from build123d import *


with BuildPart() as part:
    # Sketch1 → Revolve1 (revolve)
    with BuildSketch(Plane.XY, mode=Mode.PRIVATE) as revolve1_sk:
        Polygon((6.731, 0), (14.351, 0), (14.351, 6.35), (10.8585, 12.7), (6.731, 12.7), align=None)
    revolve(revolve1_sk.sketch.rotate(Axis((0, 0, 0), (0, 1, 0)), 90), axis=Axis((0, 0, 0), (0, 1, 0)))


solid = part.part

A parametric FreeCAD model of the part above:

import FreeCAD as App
import Part
import Sketcher

V = App.Vector
Q = App.Units.Quantity


def add_polygon(sketch, points):
    """Adds a closed chain of lines whose ends are joined by coincident constraints."""
    first, n = sketch.GeometryCount, len(points)
    for a, b in zip(points, points[1:] + points[:1]):
        sketch.addGeometry(Part.LineSegment(App.Vector(*a, 0), App.Vector(*b, 0)), False)
    for i in range(n):
        sketch.addConstraint(Sketcher.Constraint("Coincident", first + i, 2, first + (i + 1) % n, 1))

doc = App.newDocument("Part")
params = doc.addObject("Spreadsheet::Sheet", "Params")
for row, (alias, value) in enumerate([
    ("sketch1_width", "0.3 in"),
    ("sketch1_height", "0.5 in"),
    ("sketch1_height2", "0.25 in"),
    ("revolution_angle", "360 deg"),
], start=1):
    params.set(f"A{row}", alias)
    params.set(f"B{row}", "=" + value)
    params.setAlias(f"B{row}", alias)

body = doc.addObject("PartDesign::Body", "Body")

# Sketch on XY plane
sketch1 = body.newObject("Sketcher::SketchObject", "Sketch")
sketch1.AttachmentSupport = (doc.getObject("XY_Plane"), [""])
sketch1.MapMode = "FlatFace"
add_polygon(sketch1, [(6.7, 0), (14.4, 0), (14.4, 6.3), (10.9, 12.7), (6.7, 12.7)])  # lines 0-4
sketch1.addConstraint([
    Sketcher.Constraint("Horizontal", 0),
    Sketcher.Constraint("Vertical", 1),
    Sketcher.Constraint("Horizontal", 3),
    Sketcher.Constraint("Vertical", 4),
    Sketcher.Constraint("PointOnObject", 0, 2, -1),
    Sketcher.Constraint("DistanceX", 0, 1, 0, 2, Q("0.3 in")),
    Sketcher.Constraint("DistanceY", 4, 2, 4, 1, Q("0.5 in")),
    Sketcher.Constraint("DistanceY", 1, 1, 1, 2, Q("0.25 in")),
    Sketcher.Constraint("DistanceX", 3, 2, 3, 1, Q("0.1625 in")),
    Sketcher.Constraint("DistanceX", -1, 1, 0, 2, Q("0.565 in")),
])
sketch1.setExpression("Constraints[10]", "Params.sketch1_width")
sketch1.setExpression("Constraints[11]", "Params.sketch1_height")
sketch1.setExpression("Constraints[12]", "Params.sketch1_height2")
revolution = body.newObject("PartDesign::Revolution", "Revolution")
revolution.Profile = sketch1
revolution.ReferenceAxis = (sketch1, ["V_Axis"])
revolution.setExpression("Angle", "Params.revolution_angle")

doc.recompute()
